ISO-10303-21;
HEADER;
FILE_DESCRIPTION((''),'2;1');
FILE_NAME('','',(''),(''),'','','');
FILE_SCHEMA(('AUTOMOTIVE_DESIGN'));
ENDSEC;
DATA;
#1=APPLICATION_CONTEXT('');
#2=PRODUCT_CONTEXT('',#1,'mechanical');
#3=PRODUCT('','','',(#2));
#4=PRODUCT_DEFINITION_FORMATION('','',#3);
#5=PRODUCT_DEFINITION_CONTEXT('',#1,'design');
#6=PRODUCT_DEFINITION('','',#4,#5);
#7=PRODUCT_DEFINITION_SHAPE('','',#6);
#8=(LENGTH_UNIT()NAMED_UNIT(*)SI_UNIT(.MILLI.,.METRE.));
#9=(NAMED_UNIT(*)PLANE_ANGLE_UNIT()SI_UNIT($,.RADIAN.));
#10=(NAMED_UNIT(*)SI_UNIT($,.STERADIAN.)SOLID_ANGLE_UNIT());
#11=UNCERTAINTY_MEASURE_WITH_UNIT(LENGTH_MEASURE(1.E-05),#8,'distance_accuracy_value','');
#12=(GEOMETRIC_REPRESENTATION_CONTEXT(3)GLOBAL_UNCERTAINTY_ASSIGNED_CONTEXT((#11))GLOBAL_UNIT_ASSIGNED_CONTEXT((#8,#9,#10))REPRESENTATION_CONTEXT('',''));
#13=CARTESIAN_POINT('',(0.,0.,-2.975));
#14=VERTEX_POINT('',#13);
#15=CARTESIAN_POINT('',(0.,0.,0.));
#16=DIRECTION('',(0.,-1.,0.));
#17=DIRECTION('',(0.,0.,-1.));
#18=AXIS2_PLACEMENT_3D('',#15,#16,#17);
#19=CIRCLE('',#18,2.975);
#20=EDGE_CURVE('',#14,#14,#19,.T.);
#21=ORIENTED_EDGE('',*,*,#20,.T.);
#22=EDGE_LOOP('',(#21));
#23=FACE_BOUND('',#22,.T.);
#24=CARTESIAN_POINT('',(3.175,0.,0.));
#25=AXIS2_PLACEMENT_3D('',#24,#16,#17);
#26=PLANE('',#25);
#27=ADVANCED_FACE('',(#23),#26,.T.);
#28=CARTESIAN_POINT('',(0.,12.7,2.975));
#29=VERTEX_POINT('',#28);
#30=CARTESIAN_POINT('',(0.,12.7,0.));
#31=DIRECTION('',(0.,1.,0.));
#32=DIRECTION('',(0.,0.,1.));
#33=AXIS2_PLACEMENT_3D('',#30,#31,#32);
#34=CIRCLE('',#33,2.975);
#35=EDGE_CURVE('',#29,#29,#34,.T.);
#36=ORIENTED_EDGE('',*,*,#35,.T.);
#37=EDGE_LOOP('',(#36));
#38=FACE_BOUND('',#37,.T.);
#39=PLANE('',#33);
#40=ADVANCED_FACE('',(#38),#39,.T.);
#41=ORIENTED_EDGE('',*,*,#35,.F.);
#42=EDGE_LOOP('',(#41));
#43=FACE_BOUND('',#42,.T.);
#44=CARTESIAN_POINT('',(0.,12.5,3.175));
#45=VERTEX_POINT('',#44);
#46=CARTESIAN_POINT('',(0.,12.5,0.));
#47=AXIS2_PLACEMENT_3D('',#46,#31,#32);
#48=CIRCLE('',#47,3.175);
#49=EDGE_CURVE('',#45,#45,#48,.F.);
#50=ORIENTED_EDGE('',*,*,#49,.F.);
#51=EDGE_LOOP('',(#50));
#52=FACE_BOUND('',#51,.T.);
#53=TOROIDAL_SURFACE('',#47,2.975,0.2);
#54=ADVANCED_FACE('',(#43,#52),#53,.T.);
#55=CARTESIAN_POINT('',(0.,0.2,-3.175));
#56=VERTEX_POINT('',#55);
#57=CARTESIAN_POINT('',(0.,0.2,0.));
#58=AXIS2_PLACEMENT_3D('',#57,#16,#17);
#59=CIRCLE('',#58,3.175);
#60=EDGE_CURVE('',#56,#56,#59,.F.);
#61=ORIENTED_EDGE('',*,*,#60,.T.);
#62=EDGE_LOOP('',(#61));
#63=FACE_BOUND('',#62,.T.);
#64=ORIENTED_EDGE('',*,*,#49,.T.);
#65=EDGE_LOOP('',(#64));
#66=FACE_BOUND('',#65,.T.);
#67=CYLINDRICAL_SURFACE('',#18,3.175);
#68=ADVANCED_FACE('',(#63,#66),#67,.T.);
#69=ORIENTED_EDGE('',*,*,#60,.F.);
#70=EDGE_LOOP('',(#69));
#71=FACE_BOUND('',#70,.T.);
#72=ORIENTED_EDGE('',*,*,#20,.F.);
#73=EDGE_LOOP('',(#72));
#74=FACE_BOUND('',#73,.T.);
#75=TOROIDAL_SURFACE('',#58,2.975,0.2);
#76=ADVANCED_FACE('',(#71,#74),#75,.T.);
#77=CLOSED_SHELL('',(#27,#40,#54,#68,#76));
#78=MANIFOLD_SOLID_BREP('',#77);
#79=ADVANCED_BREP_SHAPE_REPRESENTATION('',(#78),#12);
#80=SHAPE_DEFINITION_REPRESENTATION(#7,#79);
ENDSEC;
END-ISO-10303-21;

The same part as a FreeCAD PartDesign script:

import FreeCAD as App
import Part
import Sketcher
Q = App.Units.Quantity


def edges_at(feature, points):
    """Names of the edges that pass closest to the given points."""
    edges = feature.Shape.Edges
    near = lambda p: min(range(len(edges)), key=lambda i: edges[i].distToShape(Part.Vertex(*p))[0])
    return sorted({f"Edge{near(p) + 1}" for p in points})


def add_polygon(sketch, points):
    """Adds a closed chain of lines whose ends are joined by coincident constraints."""
    first, n = sketch.GeometryCount, len(points)
    for a, b in zip(points, points[1:] + points[:1]):
        sketch.addGeometry(Part.LineSegment(App.Vector(*a, 0), App.Vector(*b, 0)), False)
    for i in range(n):
        sketch.addConstraint(Sketcher.Constraint("Coincident", first + i, 2, first + (i + 1) % n, 1))

doc = App.newDocument("Part")
params = doc.addObject("Spreadsheet::Sheet", "Params")
for row, (alias, value) in enumerate([
    ("sketch1_height", "0.5 in"),
    ("sketch1_width", "0.125 in"),
    ("revolution_angle", "360 deg"),
    ("fillet_radius", "0.2 mm"),
], start=1):
    params.set(f"A{row}", alias)
    params.set(f"B{row}", "=" + value)
    params.setAlias(f"B{row}", alias)

body = doc.addObject("PartDesign::Body", "Body")

# Sketch on XY plane
sketch1 = body.newObject("Sketcher::SketchObject", "Sketch")
sketch1.AttachmentSupport = (doc.getObject("XY_Plane"), [""])
sketch1.MapMode = "FlatFace"
add_polygon(sketch1, [(0, 12.7), (0, 0), (3.2, 0), (3.2, 12.7)])  # lines 0-3
sketch1.addConstraint(Sketcher.Constraint("Vertical", 0))
sketch1.addConstraint(Sketcher.Constraint("Horizontal", 1))
sketch1.addConstraint(Sketcher.Constraint("Vertical", 2))
sketch1.addConstraint(Sketcher.Constraint("Horizontal", 3))
sketch1.addConstraint(Sketcher.Constraint("Coincident", 0, 2, -1, 1))
sketch1.addConstraint(Sketcher.Constraint("DistanceY", 0, 2, 0, 1, Q("0.5 in")))
sketch1.addConstraint(Sketcher.Constraint("DistanceX", 1, 1, 1, 2, Q("0.125 in")))
sketch1.setExpression("Constraints[9]", "Params.sketch1_height")
sketch1.setExpression("Constraints[10]", "Params.sketch1_width")
revolution = body.newObject("PartDesign::Revolution", "Revolution")
revolution.Profile = sketch1
revolution.ReferenceAxis = (sketch1, ["V_Axis"])
revolution.setExpression("Angle", "Params.revolution_angle")
doc.recompute()

fillet = body.newObject("PartDesign::Fillet", "Fillet")
fillet.Base = (revolution, edges_at(revolution, [(0, 0, 3.175), (0, 12.7, 3.175)]))
fillet.setExpression("Radius", "Params.fillet_radius")

doc.recompute()
